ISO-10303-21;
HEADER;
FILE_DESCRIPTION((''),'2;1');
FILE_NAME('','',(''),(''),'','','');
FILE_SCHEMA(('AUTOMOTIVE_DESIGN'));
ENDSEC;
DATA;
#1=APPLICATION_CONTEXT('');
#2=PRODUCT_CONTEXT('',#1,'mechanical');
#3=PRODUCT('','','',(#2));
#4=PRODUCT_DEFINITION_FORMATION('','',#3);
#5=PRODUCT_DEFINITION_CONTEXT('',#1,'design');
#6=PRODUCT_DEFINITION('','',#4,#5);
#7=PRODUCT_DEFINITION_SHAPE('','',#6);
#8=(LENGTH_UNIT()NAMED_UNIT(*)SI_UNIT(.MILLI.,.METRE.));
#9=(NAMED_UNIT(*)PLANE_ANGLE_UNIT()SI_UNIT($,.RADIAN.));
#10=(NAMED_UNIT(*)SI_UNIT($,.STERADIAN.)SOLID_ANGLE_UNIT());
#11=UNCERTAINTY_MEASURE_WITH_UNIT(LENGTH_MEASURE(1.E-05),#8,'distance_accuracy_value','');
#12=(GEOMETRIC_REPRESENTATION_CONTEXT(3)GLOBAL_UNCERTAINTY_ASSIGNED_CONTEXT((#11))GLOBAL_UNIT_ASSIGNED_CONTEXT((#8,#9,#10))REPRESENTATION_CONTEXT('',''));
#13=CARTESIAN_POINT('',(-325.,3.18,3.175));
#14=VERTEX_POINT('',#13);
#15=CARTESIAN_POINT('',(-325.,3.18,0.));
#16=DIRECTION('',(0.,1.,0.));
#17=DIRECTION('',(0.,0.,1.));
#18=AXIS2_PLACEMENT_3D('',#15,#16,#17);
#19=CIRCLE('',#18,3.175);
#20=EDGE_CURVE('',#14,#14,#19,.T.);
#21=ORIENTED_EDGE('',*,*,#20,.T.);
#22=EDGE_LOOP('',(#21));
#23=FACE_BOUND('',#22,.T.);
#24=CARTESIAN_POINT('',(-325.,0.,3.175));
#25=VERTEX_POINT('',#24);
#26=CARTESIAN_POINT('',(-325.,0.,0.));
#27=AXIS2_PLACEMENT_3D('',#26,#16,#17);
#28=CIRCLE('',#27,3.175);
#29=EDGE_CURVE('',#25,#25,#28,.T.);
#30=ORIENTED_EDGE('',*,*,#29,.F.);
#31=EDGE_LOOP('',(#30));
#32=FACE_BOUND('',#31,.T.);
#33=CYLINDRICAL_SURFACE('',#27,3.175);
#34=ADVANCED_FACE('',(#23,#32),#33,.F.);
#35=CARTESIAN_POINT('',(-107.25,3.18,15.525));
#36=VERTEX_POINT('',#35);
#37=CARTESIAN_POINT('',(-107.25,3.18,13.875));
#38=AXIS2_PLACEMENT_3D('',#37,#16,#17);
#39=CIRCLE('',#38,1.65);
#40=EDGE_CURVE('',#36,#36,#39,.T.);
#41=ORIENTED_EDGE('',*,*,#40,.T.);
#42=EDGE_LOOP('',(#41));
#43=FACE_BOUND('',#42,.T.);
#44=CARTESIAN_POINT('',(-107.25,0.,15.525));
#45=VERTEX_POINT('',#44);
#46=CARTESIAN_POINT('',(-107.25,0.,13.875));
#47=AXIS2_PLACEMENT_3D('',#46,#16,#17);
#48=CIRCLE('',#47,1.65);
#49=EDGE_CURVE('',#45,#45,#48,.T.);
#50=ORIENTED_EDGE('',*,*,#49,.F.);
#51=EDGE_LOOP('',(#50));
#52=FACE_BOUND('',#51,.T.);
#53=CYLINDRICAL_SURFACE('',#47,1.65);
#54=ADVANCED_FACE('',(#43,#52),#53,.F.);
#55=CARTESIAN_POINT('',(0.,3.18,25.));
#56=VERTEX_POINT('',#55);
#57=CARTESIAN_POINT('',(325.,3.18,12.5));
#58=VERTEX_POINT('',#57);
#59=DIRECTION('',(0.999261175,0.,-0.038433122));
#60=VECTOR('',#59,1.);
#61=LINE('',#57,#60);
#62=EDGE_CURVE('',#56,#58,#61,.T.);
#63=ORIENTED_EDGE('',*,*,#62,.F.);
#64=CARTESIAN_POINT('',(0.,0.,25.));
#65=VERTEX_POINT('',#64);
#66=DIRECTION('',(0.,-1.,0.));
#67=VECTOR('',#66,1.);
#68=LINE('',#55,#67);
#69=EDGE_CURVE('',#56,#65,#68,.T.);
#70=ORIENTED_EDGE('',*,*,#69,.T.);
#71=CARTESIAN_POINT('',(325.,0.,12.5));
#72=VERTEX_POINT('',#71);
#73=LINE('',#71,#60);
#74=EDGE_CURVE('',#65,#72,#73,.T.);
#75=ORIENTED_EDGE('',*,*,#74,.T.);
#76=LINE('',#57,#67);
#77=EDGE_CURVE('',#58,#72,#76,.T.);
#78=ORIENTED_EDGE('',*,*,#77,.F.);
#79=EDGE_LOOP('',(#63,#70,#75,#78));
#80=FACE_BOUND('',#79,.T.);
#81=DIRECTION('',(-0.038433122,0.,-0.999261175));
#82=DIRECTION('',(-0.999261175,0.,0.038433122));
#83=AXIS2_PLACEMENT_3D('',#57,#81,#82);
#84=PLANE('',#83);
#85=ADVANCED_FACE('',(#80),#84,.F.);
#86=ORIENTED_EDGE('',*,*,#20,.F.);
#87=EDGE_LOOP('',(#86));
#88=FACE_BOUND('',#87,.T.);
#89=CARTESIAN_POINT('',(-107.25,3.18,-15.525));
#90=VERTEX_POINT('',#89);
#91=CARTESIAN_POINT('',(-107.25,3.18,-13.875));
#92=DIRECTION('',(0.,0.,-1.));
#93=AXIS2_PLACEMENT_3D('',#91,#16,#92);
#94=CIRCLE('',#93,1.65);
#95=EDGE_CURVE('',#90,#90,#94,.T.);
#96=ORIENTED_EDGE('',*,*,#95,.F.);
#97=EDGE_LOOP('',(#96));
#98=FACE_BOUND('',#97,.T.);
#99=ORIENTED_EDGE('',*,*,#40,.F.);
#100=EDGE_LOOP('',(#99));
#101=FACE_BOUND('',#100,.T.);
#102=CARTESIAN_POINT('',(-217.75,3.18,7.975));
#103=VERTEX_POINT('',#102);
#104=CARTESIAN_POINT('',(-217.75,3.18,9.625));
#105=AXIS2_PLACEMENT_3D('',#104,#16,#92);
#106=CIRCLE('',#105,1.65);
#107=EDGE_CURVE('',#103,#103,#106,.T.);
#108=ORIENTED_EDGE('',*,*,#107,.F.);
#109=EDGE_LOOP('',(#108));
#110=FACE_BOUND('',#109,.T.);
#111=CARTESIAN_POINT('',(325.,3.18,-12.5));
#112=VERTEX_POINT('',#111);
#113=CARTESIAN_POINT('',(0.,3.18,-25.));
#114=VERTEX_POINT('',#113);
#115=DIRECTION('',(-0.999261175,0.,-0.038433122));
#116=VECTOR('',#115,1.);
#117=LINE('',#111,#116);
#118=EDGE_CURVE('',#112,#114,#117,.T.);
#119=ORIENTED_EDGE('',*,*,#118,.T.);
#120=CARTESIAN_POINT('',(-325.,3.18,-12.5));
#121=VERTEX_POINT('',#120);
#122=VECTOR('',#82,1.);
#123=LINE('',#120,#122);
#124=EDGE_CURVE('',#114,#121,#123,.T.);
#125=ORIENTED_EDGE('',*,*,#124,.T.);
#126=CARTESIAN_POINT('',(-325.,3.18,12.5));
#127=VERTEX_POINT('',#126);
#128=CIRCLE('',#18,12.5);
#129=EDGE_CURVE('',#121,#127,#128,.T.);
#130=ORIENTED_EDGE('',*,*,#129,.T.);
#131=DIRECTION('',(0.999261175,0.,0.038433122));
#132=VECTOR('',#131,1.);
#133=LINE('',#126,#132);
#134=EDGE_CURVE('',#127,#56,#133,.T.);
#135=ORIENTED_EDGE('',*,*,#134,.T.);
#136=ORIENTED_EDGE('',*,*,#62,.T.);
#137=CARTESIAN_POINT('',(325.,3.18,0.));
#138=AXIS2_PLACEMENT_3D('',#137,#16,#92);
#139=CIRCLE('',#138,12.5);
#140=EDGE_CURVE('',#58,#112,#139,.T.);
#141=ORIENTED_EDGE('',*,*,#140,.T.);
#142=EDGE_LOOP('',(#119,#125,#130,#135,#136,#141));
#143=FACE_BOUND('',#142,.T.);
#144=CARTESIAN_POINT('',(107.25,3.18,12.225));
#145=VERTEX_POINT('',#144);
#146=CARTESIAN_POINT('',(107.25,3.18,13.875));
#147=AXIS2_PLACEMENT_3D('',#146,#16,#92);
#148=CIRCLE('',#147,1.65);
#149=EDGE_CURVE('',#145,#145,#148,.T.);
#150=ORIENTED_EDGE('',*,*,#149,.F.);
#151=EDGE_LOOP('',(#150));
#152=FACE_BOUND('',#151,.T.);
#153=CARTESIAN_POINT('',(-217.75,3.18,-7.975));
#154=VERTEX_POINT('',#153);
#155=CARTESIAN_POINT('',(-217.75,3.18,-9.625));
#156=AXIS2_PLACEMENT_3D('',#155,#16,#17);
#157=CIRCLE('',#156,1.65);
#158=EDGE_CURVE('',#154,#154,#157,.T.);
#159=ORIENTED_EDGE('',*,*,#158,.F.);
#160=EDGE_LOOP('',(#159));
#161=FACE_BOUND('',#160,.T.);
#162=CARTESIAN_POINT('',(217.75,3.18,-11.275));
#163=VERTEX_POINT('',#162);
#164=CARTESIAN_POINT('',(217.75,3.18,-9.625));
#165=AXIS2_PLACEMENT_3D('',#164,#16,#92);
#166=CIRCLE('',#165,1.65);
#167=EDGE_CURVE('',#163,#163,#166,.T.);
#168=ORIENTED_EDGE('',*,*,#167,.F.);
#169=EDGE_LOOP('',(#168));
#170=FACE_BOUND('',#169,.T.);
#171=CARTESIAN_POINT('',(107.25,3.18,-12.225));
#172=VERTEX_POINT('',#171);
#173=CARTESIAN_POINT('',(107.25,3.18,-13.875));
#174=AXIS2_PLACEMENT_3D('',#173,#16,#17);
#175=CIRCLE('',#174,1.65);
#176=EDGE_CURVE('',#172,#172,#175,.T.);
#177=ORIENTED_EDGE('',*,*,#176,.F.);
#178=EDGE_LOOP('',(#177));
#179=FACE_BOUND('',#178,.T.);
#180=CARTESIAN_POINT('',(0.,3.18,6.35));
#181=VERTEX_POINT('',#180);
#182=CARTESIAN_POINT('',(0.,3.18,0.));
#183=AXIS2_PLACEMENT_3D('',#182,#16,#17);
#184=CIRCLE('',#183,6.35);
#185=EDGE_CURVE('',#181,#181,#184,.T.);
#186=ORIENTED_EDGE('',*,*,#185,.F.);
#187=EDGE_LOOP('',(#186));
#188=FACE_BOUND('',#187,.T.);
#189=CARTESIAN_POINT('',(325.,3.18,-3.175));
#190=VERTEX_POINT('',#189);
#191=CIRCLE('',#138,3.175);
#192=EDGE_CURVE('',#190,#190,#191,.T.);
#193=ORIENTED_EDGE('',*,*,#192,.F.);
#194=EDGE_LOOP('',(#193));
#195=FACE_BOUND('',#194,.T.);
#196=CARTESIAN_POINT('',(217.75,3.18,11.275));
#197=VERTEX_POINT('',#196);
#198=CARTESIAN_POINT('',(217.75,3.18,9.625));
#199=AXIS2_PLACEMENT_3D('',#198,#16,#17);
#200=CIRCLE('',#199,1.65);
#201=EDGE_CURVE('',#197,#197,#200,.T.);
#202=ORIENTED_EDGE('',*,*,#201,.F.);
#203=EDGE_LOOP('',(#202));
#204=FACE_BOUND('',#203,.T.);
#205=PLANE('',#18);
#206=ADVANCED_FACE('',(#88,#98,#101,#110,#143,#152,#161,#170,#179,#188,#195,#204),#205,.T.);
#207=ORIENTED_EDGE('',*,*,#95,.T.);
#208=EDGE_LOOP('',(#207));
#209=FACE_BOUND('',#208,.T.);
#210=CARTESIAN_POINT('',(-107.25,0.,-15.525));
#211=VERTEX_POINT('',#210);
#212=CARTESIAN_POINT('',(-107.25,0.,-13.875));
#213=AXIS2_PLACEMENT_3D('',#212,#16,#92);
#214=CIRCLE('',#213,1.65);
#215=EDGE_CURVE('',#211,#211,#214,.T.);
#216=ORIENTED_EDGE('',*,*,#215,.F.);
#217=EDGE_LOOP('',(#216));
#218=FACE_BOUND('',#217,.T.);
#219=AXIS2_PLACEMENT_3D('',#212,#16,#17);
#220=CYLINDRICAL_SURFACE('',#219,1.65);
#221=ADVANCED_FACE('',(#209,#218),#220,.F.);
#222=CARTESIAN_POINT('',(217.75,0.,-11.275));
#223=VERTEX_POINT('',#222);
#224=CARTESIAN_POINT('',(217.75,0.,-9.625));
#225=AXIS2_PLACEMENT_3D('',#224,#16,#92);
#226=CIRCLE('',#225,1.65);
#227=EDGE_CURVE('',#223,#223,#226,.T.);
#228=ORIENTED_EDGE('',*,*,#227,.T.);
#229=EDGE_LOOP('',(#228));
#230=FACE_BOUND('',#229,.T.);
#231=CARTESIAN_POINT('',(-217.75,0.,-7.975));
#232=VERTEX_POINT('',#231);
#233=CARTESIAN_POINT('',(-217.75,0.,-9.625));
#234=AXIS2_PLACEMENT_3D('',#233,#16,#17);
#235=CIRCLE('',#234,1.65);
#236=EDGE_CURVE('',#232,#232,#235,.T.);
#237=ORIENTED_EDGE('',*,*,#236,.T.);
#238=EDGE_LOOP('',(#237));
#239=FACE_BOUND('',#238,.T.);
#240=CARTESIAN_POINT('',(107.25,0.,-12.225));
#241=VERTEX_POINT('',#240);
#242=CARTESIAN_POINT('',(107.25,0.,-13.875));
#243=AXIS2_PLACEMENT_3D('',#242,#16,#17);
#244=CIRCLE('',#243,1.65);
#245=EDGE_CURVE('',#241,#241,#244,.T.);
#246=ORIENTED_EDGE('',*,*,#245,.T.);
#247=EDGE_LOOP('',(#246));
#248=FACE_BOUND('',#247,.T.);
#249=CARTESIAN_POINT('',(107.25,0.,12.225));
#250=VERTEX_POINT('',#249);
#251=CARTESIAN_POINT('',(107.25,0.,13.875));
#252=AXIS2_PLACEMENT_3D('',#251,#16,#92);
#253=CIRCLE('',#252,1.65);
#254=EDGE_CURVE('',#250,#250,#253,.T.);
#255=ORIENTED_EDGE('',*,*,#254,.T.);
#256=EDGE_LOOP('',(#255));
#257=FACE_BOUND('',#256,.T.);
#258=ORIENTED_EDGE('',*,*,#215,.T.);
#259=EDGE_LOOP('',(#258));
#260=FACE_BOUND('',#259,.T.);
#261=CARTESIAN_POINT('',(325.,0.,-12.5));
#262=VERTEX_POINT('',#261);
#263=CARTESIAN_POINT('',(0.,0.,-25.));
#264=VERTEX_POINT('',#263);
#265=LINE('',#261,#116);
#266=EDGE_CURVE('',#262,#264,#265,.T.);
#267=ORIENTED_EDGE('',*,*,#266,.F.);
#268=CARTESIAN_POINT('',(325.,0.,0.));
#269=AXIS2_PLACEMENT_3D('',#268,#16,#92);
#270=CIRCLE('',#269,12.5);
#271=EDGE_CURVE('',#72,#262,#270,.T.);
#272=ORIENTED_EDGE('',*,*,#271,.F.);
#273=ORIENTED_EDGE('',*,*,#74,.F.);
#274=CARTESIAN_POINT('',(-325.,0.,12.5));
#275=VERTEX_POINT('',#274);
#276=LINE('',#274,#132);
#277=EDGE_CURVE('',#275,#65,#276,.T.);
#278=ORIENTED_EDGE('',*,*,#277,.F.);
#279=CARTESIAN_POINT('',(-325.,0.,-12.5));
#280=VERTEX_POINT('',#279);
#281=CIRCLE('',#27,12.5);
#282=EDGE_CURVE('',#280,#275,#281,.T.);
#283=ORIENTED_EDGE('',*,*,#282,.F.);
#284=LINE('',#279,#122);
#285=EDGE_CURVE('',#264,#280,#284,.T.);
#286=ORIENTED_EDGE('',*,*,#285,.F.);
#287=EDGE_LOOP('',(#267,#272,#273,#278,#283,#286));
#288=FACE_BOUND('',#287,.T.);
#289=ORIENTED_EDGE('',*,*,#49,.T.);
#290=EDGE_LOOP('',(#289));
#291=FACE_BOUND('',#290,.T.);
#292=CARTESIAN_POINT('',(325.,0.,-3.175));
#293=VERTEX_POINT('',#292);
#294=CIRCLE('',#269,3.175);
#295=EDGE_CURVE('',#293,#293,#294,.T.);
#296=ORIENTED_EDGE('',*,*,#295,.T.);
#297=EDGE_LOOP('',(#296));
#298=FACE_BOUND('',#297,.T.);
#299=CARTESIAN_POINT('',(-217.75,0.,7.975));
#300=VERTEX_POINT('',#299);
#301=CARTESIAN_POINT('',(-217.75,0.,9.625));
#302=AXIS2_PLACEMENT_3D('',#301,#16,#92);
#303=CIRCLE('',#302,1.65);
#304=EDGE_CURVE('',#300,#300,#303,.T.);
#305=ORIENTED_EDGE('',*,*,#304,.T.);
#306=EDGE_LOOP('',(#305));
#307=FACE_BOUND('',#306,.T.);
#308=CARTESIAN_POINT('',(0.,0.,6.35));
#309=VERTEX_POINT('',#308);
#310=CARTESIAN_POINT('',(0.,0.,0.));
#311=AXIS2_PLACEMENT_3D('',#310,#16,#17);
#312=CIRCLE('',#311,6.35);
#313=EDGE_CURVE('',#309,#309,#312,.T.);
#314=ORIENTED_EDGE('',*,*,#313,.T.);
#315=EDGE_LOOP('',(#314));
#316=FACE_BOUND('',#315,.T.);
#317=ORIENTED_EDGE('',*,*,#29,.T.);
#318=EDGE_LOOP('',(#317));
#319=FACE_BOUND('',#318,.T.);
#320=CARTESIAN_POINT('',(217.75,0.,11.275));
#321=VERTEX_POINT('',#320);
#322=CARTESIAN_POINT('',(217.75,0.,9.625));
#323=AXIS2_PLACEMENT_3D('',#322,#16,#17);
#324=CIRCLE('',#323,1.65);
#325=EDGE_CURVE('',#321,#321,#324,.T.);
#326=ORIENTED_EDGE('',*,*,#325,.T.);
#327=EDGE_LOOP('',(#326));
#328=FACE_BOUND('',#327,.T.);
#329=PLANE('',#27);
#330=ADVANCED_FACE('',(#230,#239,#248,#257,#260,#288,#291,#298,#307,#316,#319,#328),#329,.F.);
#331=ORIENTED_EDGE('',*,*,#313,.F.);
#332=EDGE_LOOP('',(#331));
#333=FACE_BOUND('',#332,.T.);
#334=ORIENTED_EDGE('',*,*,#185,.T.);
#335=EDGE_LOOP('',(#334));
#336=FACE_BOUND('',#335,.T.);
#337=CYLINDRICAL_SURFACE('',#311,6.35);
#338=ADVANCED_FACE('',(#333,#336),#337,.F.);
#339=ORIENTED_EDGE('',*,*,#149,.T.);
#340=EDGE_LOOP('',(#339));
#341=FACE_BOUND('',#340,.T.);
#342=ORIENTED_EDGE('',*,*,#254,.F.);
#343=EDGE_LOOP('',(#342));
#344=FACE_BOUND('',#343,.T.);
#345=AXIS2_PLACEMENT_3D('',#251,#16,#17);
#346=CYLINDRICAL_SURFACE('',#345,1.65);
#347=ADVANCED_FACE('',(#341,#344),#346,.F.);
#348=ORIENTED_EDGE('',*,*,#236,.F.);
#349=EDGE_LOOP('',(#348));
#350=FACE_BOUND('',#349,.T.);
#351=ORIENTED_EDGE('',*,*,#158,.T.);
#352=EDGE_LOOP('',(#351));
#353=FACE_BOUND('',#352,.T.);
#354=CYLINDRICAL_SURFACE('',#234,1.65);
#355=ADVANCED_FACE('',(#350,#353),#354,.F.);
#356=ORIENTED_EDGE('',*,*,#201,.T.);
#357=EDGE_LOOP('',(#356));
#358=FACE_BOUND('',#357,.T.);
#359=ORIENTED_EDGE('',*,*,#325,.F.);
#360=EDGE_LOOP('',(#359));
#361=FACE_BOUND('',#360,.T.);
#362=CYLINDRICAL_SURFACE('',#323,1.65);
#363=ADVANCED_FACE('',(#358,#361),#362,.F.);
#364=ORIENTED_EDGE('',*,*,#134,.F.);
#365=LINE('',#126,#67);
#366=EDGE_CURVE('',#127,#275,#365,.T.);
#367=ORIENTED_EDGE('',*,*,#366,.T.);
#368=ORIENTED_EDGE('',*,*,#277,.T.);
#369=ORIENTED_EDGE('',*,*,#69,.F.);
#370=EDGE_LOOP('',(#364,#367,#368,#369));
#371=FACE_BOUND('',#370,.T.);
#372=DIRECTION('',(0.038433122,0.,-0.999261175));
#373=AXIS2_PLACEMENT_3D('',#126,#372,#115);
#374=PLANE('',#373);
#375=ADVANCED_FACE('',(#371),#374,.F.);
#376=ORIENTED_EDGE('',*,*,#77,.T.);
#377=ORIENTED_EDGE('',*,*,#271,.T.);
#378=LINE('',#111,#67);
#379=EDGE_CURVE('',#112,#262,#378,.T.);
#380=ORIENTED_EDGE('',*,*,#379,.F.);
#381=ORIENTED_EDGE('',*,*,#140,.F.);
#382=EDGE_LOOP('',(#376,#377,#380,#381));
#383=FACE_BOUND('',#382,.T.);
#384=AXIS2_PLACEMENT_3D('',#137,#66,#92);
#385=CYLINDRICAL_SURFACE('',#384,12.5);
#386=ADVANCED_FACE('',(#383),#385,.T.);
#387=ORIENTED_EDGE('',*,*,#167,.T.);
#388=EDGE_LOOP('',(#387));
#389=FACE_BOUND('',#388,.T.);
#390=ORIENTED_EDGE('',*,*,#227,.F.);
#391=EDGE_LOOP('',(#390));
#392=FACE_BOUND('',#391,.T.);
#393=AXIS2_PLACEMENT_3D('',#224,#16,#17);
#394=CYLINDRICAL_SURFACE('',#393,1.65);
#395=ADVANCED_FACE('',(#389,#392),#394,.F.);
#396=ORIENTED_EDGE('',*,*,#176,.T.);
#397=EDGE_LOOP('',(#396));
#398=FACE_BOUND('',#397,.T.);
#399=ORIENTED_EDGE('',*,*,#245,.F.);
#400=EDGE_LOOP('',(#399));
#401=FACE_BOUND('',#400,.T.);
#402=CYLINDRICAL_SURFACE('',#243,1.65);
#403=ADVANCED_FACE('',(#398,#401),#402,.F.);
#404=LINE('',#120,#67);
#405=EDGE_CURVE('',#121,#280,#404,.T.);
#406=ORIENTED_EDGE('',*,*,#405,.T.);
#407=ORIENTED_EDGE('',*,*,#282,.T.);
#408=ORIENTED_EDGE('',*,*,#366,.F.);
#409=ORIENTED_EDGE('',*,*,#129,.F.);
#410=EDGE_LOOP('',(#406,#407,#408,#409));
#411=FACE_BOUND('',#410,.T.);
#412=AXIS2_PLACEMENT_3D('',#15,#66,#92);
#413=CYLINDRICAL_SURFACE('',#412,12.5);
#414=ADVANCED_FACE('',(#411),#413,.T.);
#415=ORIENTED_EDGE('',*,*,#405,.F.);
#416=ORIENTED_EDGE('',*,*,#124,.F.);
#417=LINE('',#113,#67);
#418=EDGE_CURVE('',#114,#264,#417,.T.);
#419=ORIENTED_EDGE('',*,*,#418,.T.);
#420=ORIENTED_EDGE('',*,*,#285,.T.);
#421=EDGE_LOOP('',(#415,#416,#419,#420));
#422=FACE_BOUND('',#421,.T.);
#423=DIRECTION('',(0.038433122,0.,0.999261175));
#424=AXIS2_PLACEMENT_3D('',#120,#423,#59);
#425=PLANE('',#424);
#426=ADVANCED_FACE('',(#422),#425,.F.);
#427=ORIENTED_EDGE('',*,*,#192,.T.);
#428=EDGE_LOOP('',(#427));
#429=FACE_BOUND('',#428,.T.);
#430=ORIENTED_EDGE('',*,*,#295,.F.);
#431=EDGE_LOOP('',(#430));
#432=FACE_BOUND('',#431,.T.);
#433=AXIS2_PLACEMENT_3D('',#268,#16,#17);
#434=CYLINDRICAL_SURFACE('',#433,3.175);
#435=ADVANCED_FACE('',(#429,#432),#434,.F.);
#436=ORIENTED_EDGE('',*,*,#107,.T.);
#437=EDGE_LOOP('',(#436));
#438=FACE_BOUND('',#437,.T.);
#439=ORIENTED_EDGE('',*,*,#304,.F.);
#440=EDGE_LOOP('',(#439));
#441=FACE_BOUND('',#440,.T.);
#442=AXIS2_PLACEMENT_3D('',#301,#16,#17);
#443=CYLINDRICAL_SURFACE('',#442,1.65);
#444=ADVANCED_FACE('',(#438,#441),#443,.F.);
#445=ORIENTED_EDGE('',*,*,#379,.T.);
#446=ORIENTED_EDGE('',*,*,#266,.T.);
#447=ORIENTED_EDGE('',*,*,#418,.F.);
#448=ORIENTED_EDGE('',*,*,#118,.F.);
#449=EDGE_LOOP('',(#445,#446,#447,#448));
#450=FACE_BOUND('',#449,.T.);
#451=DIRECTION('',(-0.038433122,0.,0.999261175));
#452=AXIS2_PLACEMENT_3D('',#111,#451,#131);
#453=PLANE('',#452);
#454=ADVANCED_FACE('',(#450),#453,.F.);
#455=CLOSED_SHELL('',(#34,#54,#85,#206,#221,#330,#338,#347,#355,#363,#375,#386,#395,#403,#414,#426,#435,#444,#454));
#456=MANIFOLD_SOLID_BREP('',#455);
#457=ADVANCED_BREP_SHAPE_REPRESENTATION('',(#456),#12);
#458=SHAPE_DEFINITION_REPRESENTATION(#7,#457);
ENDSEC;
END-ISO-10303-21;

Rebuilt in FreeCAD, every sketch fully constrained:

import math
import FreeCAD as App
import Part
import Sketcher
from FreeCAD import Vector

doc = App.newDocument("Part")
params = doc.addObject("Spreadsheet::Sheet", "Params")
for row, (alias, value) in enumerate([
    ("sketch1_radius", "12.5 mm"),
    ("pad1_length", "3.18 mm"),
    ("sketch2_diameter", "12.7 mm"),
    ("sketch2_diameter2", "3.3 mm"),
    ("sketch2_diameter3", "6.35 mm"),
], start=1):
    params.set(f"A{row}", alias)
    params.set(f"B{row}", "=" + value)
    params.setAlias(f"B{row}", alias)

body = doc.addObject("PartDesign::Body", "Body")

# Sketch on XZ plane
sketch1 = doc.addObject("Sketcher::SketchObject", "Sketch")
body.addObject(sketch1)
sketch1.AttachmentSupport = (doc.XZ_Plane, [""])
sketch1.MapMode = "FlatFace"
sketch1.addGeometry([
    Part.LineSegment(Vector(0, -25, 0), Vector(-325, -12, 0)),  # 0
    Part.ArcOfCircle(Part.Circle(Vector(-325, 0, 0), Vector(0, 0, 1), 12), math.radians(90), math.radians(270)),  # 1
    Part.LineSegment(Vector(-325, 12, 0), Vector(0, 25, 0)),  # 2
    Part.LineSegment(Vector(0, 25, 0), Vector(325, 12, 0)),  # 3
    Part.ArcOfCircle(Part.Circle(Vector(325, 0, 0), Vector(0, 0, 1), 12), math.radians(-90), math.radians(90)),  # 4
    Part.LineSegment(Vector(325, -12, 0), Vector(0, -25, 0)),  # 5
], False)
sketch1.addConstraint([
    Sketcher.Constraint("Coincident", 0, 2, 1, 2),
    Sketcher.Constraint("Coincident", 1, 1, 2, 1),
    Sketcher.Constraint("Coincident", 2, 2, 3, 1),
    Sketcher.Constraint("Coincident", 3, 2, 4, 2),
    Sketcher.Constraint("Coincident", 4, 1, 5, 1),
    Sketcher.Constraint("Coincident", 5, 2, 0, 1),
    Sketcher.Constraint("Equal", 1, 4),
    Sketcher.Constraint("Symmetric", 1, 3, 4, 3, -1, 1),
    Sketcher.Constraint("Symmetric", 2, 2, 5, 2, -1, 1),
    Sketcher.Constraint("Symmetric", 1, 1, 3, 2, -2),
    Sketcher.Constraint("PointOnObject", 2, 2, -2),
    Sketcher.Constraint("Parallel", 0, 3),
    Sketcher.Constraint("Parallel", 2, 5),
    Sketcher.Constraint("Vertical", 1, 3, 0, 2),
    Sketcher.Constraint("Radius", 1, 12.5),
    Sketcher.Constraint("DistanceX", 1, 3, -1, 1, 325.0),
    Sketcher.Constraint("DistanceY", -1, 1, 2, 2, 25.0),
])
sketch1.setExpression("Constraints[14]", "Params.sketch1_radius")
pad1 = doc.addObject("PartDesign::Pad", "Pad")
body.addObject(pad1)
pad1.Profile = sketch1
pad1.setExpression("Length", "Params.pad1_length")
pad1.Reversed = True

# Sketch on XZ plane
sketch2 = doc.addObject("Sketcher::SketchObject", "Sketch001")
body.addObject(sketch2)
sketch2.AttachmentSupport = (doc.XZ_Plane, [""])
sketch2.MapMode = "FlatFace"
sketch2.AttachmentOffset = App.Placement(Vector(0, 0, -3.18), App.Rotation())
sketch2.addGeometry([
    Part.Circle(Vector(0, 0, 0), Vector(0, 0, 1), 6.3),  # 0
    Part.Circle(Vector(-325, 0, 0), Vector(0, 0, 1), 3.2),  # 1
    Part.Circle(Vector(-217.8, -9.6, 0), Vector(0, 0, 1), 1.6),  # 2
    Part.Circle(Vector(-107.2, 13.9, 0), Vector(0, 0, 1), 1.6),  # 3
    Part.Circle(Vector(325, 0, 0), Vector(0, 0, 1), 3.2),  # 4
    Part.Circle(Vector(-107.2, -13.9, 0), Vector(0, 0, 1), 1.6),  # 5
    Part.Circle(Vector(-217.8, 9.6, 0), Vector(0, 0, 1), 1.6),  # 6
    Part.Circle(Vector(107.2, 13.9, 0), Vector(0, 0, 1), 1.6),  # 7
    Part.Circle(Vector(107.2, -13.9, 0), Vector(0, 0, 1), 1.6),  # 8
    Part.Circle(Vector(217.8, 9.6, 0), Vector(0, 0, 1), 1.6),  # 9
    Part.Circle(Vector(217.8, -9.6, 0), Vector(0, 0, 1), 1.6),  # 10
], False)
sketch2.addConstraint([
    Sketcher.Constraint("Coincident", 0, 3, -1, 1),
    Sketcher.Constraint("Equal", 2, 3),
    Sketcher.Constraint("Equal", 1, 4),
    Sketcher.Constraint("Equal", 3, 5),
    Sketcher.Constraint("Equal", 5, 6),
    Sketcher.Constraint("Equal", 6, 7),
    Sketcher.Constraint("Equal", 7, 8),
    Sketcher.Constraint("Equal", 8, 9),
    Sketcher.Constraint("Equal", 9, 10),
    Sketcher.Constraint("Symmetric", 1, 3, 4, 3, -1, 1),
    Sketcher.Constraint("Symmetric", 5, 3, 7, 3, -1, 1),
    Sketcher.Constraint("Symmetric", 3, 3, 8, 3, -1, 1),
    Sketcher.Constraint("Symmetric", 2, 3, 9, 3, -1, 1),
    Sketcher.Constraint("Symmetric", 6, 3, 10, 3, -1, 1),
    Sketcher.Constraint("Symmetric", 3, 3, 7, 3, -2),
    Sketcher.Constraint("Symmetric", 6, 3, 9, 3, -2),
    Sketcher.Constraint("PointOnObject", 1, 3, -1),
    Sketcher.Constraint("Diameter", 0, 12.7),
    Sketcher.Constraint("Diameter", 2, 3.3),
    Sketcher.Constraint("Diameter", 1, 6.35),
    Sketcher.Constraint("DistanceX", 1, 3, -1, 1, 325.0),
    Sketcher.Constraint("DistanceX", 6, 3, 7, 3, 325.0),
    Sketcher.Constraint("DistanceX", 2, 3, 3, 3, 110.5),
    Sketcher.Constraint("DistanceY", 2, 3, 3, 3, 23.5),
    Sketcher.Constraint("DistanceY", 5, 3, 3, 3, 27.75),
])
sketch2.setExpression("Constraints[17]", "Params.sketch2_diameter")
sketch2.setExpression("Constraints[18]", "Params.sketch2_diameter2")
sketch2.setExpression("Constraints[19]", "Params.sketch2_diameter3")
pocket1 = doc.addObject("PartDesign::Pocket", "Pocket")
body.addObject(pocket1)
pocket1.Profile = sketch2
pocket1.Type = "ThroughAll"
pocket1.Reversed = True

doc.recompute()
